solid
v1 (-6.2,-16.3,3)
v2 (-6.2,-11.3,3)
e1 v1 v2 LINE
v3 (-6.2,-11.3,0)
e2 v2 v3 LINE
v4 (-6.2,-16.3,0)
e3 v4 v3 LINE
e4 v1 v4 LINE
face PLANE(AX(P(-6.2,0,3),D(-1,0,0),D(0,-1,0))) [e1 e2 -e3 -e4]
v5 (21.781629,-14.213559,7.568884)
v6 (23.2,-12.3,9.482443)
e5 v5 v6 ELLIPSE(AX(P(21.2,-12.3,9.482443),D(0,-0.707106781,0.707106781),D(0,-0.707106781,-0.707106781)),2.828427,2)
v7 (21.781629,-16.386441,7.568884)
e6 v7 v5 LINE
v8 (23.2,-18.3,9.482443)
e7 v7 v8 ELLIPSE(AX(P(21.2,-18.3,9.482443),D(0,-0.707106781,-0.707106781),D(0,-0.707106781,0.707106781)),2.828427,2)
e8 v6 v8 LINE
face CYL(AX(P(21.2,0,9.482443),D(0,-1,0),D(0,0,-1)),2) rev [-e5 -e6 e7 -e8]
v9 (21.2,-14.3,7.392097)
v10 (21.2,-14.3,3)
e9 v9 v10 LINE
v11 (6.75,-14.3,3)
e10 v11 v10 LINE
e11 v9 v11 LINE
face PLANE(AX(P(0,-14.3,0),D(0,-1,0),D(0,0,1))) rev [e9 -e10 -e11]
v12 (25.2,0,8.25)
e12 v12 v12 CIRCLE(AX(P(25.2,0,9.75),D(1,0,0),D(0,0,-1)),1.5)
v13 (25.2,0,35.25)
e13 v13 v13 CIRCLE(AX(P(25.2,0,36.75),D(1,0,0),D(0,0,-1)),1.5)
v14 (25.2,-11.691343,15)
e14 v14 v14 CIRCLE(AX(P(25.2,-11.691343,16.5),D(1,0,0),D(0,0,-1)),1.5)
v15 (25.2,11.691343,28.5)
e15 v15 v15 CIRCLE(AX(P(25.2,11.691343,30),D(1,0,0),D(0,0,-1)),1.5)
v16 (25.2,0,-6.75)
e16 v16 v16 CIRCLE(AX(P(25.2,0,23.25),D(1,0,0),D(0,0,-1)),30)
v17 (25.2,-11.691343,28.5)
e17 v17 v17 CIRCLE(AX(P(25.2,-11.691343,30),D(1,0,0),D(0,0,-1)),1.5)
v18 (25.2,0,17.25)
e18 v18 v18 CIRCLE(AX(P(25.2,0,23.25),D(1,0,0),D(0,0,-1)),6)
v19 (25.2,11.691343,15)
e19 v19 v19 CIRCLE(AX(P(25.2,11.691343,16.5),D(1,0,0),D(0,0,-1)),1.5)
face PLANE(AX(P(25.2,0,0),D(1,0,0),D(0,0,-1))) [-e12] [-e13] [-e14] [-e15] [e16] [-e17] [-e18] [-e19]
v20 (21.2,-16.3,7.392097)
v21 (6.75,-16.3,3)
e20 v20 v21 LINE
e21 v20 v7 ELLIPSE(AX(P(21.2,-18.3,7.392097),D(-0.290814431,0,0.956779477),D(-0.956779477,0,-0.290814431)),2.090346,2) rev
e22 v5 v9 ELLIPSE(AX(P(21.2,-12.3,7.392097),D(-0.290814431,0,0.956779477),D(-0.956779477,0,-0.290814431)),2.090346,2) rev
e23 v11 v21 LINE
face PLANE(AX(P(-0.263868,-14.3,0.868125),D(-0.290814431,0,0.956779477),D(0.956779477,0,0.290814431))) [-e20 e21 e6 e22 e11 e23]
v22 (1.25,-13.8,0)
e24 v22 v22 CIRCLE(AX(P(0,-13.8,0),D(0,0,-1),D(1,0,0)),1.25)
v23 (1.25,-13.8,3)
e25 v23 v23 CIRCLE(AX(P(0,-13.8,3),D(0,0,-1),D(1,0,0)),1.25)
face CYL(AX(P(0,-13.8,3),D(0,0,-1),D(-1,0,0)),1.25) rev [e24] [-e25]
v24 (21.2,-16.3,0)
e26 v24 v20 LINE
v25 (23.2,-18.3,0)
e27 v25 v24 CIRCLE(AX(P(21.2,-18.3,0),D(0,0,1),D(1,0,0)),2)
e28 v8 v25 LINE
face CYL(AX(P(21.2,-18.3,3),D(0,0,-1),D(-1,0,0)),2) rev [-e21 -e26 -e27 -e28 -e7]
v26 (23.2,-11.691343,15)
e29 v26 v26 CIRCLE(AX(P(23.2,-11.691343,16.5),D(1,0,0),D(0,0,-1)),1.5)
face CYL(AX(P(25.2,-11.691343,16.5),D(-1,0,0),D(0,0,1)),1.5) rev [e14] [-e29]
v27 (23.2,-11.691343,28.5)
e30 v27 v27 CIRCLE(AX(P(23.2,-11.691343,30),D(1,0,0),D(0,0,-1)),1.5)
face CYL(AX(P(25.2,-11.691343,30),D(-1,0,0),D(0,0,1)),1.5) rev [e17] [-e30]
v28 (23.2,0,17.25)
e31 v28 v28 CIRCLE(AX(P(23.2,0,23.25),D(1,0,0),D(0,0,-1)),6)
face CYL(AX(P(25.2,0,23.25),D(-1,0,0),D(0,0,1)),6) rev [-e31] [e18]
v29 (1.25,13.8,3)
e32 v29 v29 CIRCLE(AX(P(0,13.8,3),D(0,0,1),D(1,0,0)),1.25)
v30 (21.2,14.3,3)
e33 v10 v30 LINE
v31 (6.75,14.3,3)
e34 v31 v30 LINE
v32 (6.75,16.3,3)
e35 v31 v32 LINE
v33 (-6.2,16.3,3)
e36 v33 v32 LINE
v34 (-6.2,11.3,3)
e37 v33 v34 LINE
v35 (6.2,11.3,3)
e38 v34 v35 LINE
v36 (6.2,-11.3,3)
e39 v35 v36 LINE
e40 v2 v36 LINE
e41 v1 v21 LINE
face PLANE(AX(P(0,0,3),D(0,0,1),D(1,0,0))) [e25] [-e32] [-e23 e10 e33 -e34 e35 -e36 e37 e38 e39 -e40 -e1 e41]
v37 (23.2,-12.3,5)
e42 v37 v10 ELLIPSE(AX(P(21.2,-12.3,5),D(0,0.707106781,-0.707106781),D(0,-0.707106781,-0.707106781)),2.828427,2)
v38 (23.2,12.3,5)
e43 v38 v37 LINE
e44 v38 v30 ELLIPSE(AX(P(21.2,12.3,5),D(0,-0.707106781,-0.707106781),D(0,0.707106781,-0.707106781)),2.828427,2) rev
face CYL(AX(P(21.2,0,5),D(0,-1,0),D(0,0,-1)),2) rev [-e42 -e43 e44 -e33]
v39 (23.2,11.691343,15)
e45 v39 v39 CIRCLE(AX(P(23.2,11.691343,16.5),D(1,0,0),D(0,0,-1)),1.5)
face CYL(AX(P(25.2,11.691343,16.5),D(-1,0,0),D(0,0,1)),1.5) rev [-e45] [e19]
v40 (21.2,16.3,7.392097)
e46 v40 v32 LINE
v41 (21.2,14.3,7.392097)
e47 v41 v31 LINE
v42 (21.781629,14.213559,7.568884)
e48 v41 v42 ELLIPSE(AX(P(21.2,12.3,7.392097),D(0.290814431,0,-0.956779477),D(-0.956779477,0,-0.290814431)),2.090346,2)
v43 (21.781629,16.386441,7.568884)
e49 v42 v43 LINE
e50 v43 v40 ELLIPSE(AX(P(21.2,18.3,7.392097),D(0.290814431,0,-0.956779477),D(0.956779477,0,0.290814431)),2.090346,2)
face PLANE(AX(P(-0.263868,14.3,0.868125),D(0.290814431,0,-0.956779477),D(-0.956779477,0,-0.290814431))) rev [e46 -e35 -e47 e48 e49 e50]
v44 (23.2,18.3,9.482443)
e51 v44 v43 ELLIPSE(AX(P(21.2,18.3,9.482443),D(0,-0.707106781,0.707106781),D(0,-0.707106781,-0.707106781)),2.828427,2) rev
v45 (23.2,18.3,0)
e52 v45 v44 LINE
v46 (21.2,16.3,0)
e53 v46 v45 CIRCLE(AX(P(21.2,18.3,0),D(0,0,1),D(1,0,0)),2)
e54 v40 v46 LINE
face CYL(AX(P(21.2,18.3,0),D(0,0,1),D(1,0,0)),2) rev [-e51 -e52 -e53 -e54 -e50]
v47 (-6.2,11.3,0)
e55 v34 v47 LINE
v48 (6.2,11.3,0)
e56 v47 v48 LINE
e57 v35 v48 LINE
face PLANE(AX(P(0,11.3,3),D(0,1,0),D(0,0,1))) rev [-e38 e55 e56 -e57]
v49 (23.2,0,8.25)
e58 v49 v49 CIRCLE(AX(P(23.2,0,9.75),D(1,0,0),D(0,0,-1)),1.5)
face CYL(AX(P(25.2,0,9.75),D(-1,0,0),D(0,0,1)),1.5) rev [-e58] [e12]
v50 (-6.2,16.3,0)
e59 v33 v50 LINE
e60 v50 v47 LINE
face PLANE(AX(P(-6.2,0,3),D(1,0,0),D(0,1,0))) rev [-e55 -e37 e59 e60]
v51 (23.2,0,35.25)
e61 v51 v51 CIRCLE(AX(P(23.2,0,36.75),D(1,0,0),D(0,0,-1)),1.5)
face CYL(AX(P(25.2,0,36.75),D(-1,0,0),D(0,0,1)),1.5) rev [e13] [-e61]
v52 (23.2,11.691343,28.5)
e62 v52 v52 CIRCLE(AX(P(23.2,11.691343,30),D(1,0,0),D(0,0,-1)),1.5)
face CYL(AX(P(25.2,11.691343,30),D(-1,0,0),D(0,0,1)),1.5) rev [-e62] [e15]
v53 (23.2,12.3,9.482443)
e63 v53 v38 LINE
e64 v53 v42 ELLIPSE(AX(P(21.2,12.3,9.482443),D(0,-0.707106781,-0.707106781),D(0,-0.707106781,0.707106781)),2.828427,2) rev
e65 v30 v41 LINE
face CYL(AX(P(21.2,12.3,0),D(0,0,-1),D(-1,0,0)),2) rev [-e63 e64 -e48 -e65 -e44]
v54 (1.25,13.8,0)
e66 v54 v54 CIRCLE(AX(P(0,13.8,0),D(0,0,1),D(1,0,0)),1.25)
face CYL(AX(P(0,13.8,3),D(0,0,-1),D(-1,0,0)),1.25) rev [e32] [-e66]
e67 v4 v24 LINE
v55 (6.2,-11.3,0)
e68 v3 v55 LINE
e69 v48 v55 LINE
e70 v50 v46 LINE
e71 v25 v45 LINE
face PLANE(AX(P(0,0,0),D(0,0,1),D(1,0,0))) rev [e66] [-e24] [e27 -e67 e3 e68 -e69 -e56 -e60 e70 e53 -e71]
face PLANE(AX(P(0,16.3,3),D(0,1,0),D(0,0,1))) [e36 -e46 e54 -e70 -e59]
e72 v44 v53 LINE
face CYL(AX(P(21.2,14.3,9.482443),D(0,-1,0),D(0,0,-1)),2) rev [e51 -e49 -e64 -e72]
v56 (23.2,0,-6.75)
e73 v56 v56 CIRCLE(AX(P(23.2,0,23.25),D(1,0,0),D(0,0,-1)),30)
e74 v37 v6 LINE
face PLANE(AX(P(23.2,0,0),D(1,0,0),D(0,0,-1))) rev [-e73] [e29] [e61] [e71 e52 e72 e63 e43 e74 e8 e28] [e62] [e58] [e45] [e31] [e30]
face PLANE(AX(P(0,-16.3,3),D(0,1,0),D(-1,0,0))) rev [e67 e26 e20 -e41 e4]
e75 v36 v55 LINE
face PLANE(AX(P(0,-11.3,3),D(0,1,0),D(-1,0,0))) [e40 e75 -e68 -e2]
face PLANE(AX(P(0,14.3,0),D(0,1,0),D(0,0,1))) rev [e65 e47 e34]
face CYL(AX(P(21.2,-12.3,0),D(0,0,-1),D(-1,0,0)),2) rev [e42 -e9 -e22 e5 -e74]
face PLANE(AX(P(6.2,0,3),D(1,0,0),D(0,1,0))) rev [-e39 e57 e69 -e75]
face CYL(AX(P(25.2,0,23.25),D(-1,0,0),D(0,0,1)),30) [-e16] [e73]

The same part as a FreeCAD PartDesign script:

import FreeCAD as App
import Part
import Sketcher


def edges_at(feature, points):
    """Names of the edges that pass closest to the given points."""
    edges = feature.Shape.Edges
    near = lambda p: min(range(len(edges)), key=lambda i: edges[i].distToShape(Part.Vertex(*p))[0])
    return sorted({f"Edge{near(p) + 1}" for p in points})


def add_polygon(sketch, points):
    """Adds a closed chain of lines whose ends are joined by coincident constraints."""
    first, n = sketch.GeometryCount, len(points)
    for a, b in zip(points, points[1:] + points[:1]):
        sketch.addGeometry(Part.LineSegment(App.Vector(*a, 0), App.Vector(*b, 0)), False)
    for i in range(n):
        sketch.addConstraint(Sketcher.Constraint("Coincident", first + i, 2, first + (i + 1) % n, 1))

doc = App.newDocument("Part")
body = doc.addObject("PartDesign::Body", "Body")

# Sketch on XY plane
sketch1 = body.newObject("Sketcher::SketchObject", "Sketch")
sketch1.AttachmentSupport = (doc.getObject("XY_Plane"), [""])
sketch1.MapMode = "FlatFace"
add_polygon(sketch1, [(-6.2, 16.3), (-6.2, 11.3), (6.2, 11.3), (6.2, 0), (11.2, 0), (11.2, 16.3)])  # lines 0-5
sketch1.addGeometry(Part.Circle(App.Vector(0, 13.8, 0), App.Vector(0, 0, 1), 1.25), False)  # 6
sketch1.addConstraint([
    Sketcher.Constraint("Vertical", 0),
    Sketcher.Constraint("Horizontal", 1),
    Sketcher.Constraint("Vertical", 2),
    Sketcher.Constraint("Horizontal", 3),
    Sketcher.Constraint("Vertical", 4),
    Sketcher.Constraint("Horizontal", 5),
    Sketcher.Constraint("PointOnObject", 6, 3, -2),
    Sketcher.Constraint("PointOnObject", 2, 2, -1),
    Sketcher.Constraint("Equal", 3, 0),
    Sketcher.Constraint("Diameter", 6, 2.5),
    Sketcher.Constraint("DistanceX", 3, 1, 3, 2, 5.0),
    Sketcher.Constraint("DistanceX", 1, 1, 1, 2, 12.4),
    Sketcher.Constraint("DistanceY", 2, 2, 2, 1, 11.3),
    Sketcher.Constraint("DistanceY", -1, 1, 6, 3, 13.8),
    Sketcher.Constraint("DistanceX", 0, 2, -1, 1, 6.2),
])
pad1 = body.newObject("PartDesign::Pad", "Pad")
pad1.Profile = sketch1
pad1.Length = 3

# Sketch on YZ plane
sketch2 = body.newObject("Sketcher::SketchObject", "Sketch001")
sketch2.AttachmentSupport = (doc.getObject("YZ_Plane"), [""])
sketch2.MapMode = "FlatFace"
sketch2.AttachmentOffset = App.Placement(App.Vector(0, 0, 11.2), App.Rotation())
add_polygon(sketch2, [(16.3, 3), (0, 3), (0, 0), (16.3, 0)])  # lines 0-3
sketch2.addConstraint([
    Sketcher.Constraint("Horizontal", 0),
    Sketcher.Constraint("Vertical", 1),
    Sketcher.Constraint("Horizontal", 2),
    Sketcher.Constraint("Vertical", 3),
    Sketcher.Constraint("Coincident", 1, 2, -1, 1),
    Sketcher.Constraint("DistanceY", 1, 2, 1, 1, 3.0),
    Sketcher.Constraint("DistanceX", 0, 2, 0, 1, 16.3),
])
pad2 = body.newObject("PartDesign::Pad", "Pad001")
pad2.Profile = sketch2
pad2.Length = 12

# Sketch on XZ plane
sketch3 = body.newObject("Sketcher::SketchObject", "Sketch002")
sketch3.AttachmentSupport = (doc.getObject("XZ_Plane"), [""])
sketch3.MapMode = "FlatFace"
sketch3.AttachmentOffset = App.Placement(App.Vector(0, 0, -16.3), App.Rotation())
add_polygon(sketch3, [(23.2, 8), (23.2, 3), (6.75, 3)])  # lines 0-2
sketch3.addConstraint([
    Sketcher.Constraint("Vertical", 0),
    Sketcher.Constraint("Horizontal", 1),
    Sketcher.Constraint("DistanceY", 0, 2, 0, 1, 5.0),
    Sketcher.Constraint("DistanceY", -1, 1, 0, 2, 3.0),
    Sketcher.Constraint("DistanceX", 1, 2, 1, 1, 16.45),
    Sketcher.Constraint("DistanceX", -1, 1, 0, 2, 23.2),
])
pad3 = body.newObject("PartDesign::Pad", "Pad002")
pad3.Profile = sketch3
pad3.Length = 2
doc.recompute()

mirrored = body.newObject("PartDesign::Mirrored", "Mirrored")
mirrored.Originals = [pad1, pad2, pad3]
mirrored.MirrorPlane = (doc.getObject("XZ_Plane"), [""])
body.Tip = mirrored

# Sketch on YZ plane
sketch4 = body.newObject("Sketcher::SketchObject", "Sketch003")
sketch4.AttachmentSupport = (doc.getObject("YZ_Plane"), [""])
sketch4.MapMode = "FlatFace"
sketch4.AttachmentOffset = App.Placement(App.Vector(0, 0, 23.2), App.Rotation())
sketch4.addGeometry([
    Part.Circle(App.Vector(0, 23.25, 0), App.Vector(0, 0, 1), 30),  # 0
    Part.Circle(App.Vector(-11.691343, 30, 0), App.Vector(0, 0, 1), 1.5),  # 1
    Part.Circle(App.Vector(-11.691343, 16.5, 0), App.Vector(0, 0, 1), 1.5),  # 2
    Part.Circle(App.Vector(0, 36.75, 0), App.Vector(0, 0, 1), 1.5),  # 3
    Part.Circle(App.Vector(0, 23.25, 0), App.Vector(0, 0, 1), 6),  # 4
    Part.Circle(App.Vector(11.691343, 30, 0), App.Vector(0, 0, 1), 1.5),  # 5
    Part.Circle(App.Vector(0, 9.75, 0), App.Vector(0, 0, 1), 1.5),  # 6
    Part.Circle(App.Vector(11.691343, 16.5, 0), App.Vector(0, 0, 1), 1.5),  # 7
], False)
sketch4.addConstraint([
    Sketcher.Constraint("Coincident", 4, 3, 0, 3),
    Sketcher.Constraint("Equal", 1, 2),
    Sketcher.Constraint("Equal", 2, 3),
    Sketcher.Constraint("Equal", 3, 5),
    Sketcher.Constraint("Equal", 5, 6),
    Sketcher.Constraint("Equal", 6, 7),
    Sketcher.Constraint("Symmetric", 1, 3, 5, 3, -2),
    Sketcher.Constraint("Symmetric", 2, 3, 7, 3, -2),
    Sketcher.Constraint("PointOnObject", 0, 3, -2),
    Sketcher.Constraint("PointOnObject", 3, 3, -2),
    Sketcher.Constraint("PointOnObject", 6, 3, -2),
    Sketcher.Constraint("Vertical", 1, 3, 2, 3),
    Sketcher.Constraint("Diameter", 0, 60.0),
    Sketcher.Constraint("Diameter", 1, 3.0),
    Sketcher.Constraint("Diameter", 4, 12.0),
    Sketcher.Constraint("DistanceY", -1, 1, 1, 3, 30.0),
    Sketcher.Constraint("DistanceY", -1, 1, 2, 3, 16.5),
    Sketcher.Constraint("DistanceY", 0, 3, 3, 3, 13.5),
    Sketcher.Constraint("DistanceY", 6, 3, 0, 3, 13.5),
    Sketcher.Constraint("DistanceY", -1, 1, 0, 3, 23.25),
    Sketcher.Constraint("DistanceX", 1, 3, -1, 1, 11.691343),
])
pad4 = body.newObject("PartDesign::Pad", "Pad003")
pad4.Profile = sketch4
pad4.Length = 2
doc.recompute()

fillet = body.newObject("PartDesign::Fillet", "Fillet")
fillet.Base = (pad4, edges_at(pad4, [
    (23.2, 16.3, 4),
    (23.2, 0, 3),
    (23.2, 15.3, 8),
    (23.2, 14.3, 5.5),
    (23.2, -16.3, 4),
    (23.2, -14.3, 5.5),
    (23.2, -15.3, 8),
]))
fillet.Radius = 2

doc.recompute()
